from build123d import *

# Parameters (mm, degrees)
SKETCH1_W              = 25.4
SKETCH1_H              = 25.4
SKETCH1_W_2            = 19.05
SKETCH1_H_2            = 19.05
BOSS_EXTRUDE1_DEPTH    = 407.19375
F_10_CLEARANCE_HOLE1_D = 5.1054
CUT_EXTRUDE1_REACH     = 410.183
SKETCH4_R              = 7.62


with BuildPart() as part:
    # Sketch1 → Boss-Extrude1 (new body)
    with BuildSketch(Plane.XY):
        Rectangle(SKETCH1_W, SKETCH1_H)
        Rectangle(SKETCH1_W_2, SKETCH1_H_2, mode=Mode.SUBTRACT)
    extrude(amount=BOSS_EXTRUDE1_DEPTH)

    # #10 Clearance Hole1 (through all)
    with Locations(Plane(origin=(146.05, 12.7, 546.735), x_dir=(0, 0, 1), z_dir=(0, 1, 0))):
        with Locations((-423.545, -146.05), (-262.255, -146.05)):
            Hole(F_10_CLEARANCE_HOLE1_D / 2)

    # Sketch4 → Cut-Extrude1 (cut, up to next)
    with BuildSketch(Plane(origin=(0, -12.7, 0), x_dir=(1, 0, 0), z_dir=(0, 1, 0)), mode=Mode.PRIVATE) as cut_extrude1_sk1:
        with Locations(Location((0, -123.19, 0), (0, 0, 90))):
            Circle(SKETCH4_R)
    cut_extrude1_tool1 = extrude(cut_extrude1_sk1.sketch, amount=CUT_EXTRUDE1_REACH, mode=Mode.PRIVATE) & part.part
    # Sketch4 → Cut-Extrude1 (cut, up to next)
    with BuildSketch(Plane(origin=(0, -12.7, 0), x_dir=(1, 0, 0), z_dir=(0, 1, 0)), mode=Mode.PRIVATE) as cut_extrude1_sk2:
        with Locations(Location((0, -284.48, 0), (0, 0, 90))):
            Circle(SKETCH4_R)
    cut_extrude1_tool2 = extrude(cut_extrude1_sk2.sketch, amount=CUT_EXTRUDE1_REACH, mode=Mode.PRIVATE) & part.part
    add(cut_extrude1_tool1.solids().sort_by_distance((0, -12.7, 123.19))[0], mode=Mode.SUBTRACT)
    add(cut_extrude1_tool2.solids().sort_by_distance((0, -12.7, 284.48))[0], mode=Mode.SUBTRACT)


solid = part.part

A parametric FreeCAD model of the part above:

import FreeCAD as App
import Part
import Sketcher

V = App.Vector
Q = App.Units.Quantity

doc = App.newDocument("Part")
body = doc.addObject("PartDesign::Body", "Body")

sketch1 = body.newObject("Sketcher::SketchObject", "Sketch")
sketch1.AttachmentSupport = (doc.getObject("XY_Plane"), [""])
sketch1.MapMode = "FlatFace"
sketch1.addGeometry(Part.LineSegment(V(-13, 13, 0), V(-13, -13, 0)), False)
sketch1.addGeometry(Part.LineSegment(V(-13, -13, 0), V(13, -13, 0)), False)
sketch1.addGeometry(Part.LineSegment(V(13, -13, 0), V(13, 13, 0)), False)
sketch1.addGeometry(Part.LineSegment(V(13, 13, 0), V(-13, 13, 0)), False)
sketch1.addGeometry(Part.LineSegment(V(10, -10, 0), V(-10, -10, 0)), False)
sketch1.addGeometry(Part.LineSegment(V(-10, -10, 0), V(-10, 10, 0)), False)
sketch1.addGeometry(Part.LineSegment(V(-10, 10, 0), V(10, 10, 0)), False)
sketch1.addGeometry(Part.LineSegment(V(10, 10, 0), V(10, -10, 0)), False)
sketch1.addConstraint(Sketcher.Constraint("Coincident", 0, 2, 1, 1))
sketch1.addConstraint(Sketcher.Constraint("Coincident", 1, 2, 2, 1))
sketch1.addConstraint(Sketcher.Constraint("Coincident", 2, 2, 3, 1))
sketch1.addConstraint(Sketcher.Constraint("Coincident", 3, 2, 0, 1))
sketch1.addConstraint(Sketcher.Constraint("Coincident", 4, 2, 5, 1))
sketch1.addConstraint(Sketcher.Constraint("Coincident", 5, 2, 6, 1))
sketch1.addConstraint(Sketcher.Constraint("Coincident", 6, 2, 7, 1))
sketch1.addConstraint(Sketcher.Constraint("Coincident", 7, 2, 4, 1))
sketch1.addConstraint(Sketcher.Constraint("Vertical", 0))
sketch1.addConstraint(Sketcher.Constraint("Horizontal", 1))
sketch1.addConstraint(Sketcher.Constraint("Vertical", 2))
sketch1.addConstraint(Sketcher.Constraint("Horizontal", 3))
sketch1.addConstraint(Sketcher.Constraint("Horizontal", 4))
sketch1.addConstraint(Sketcher.Constraint("Vertical", 5))
sketch1.addConstraint(Sketcher.Constraint("Horizontal", 6))
sketch1.addConstraint(Sketcher.Constraint("Vertical", 7))
sketch1.addConstraint(Sketcher.Constraint("Symmetric", 0, 2, 2, 2, -1, 1))
sketch1.addConstraint(Sketcher.Constraint("Symmetric", 4, 2, 6, 2, -1, 1))
sketch1.addConstraint(Sketcher.Constraint("Equal", 3, 0))
sketch1.addConstraint(Sketcher.Constraint("Equal", 6, 5))
sketch1.addConstraint(Sketcher.Constraint("DistanceX", 1, 1, 1, 2, Q("1 in")))
sketch1.addConstraint(Sketcher.Constraint("DistanceX", 4, 2, 4, 1, Q("0.75 in")))
pad1 = body.newObject("PartDesign::Pad", "Pad")
pad1.Profile = sketch1
pad1.Length = Q("16.03125 in")

sketch2 = body.newObject("Sketcher::SketchObject", "Sketch001")
sketch2.AttachmentSupport = (doc.getObject("XZ_Plane"), [""])
sketch2.MapMode = "FlatFace"
sketch2.AttachmentOffset = App.Placement(V(0, 0, -0.5 * 25.4), App.Rotation())
sketch2.addGeometry(Part.Circle(V(0, 123.2, 0), V(0, 0, 1), 2.6), False)
sketch2.addGeometry(Part.Circle(V(0, 284.5, 0), V(0, 0, 1), 2.6), False)
sketch2.addConstraint(Sketcher.Constraint("Equal", 0, 1))
sketch2.addConstraint(Sketcher.Constraint("PointOnObject", 0, 3, -2))
sketch2.addConstraint(Sketcher.Constraint("PointOnObject", 1, 3, -2))
sketch2.addConstraint(Sketcher.Constraint("Diameter", 0, Q("0.201 in")))
sketch2.addConstraint(Sketcher.Constraint("DistanceY", -1, 1, 1, 3, Q("11.2 in")))
sketch2.addConstraint(Sketcher.Constraint("DistanceY", -1, 1, 0, 3, Q("4.85 in")))
doc.recompute()
hole = body.newObject("PartDesign::Hole", "Hole")
hole.Profile = sketch2
hole.ThreadType = "None"
hole.Diameter = Q("0.201 in")
hole.DepthType = "ThroughAll"
hole.Reversed = True

sketch3 = body.newObject("Sketcher::SketchObject", "Sketch002")
sketch3.AttachmentSupport = (doc.getObject("XZ_Plane"), [""])
sketch3.MapMode = "FlatFace"
sketch3.AttachmentOffset = App.Placement(V(0, 0, 0.5 * 25.4), App.Rotation())
sketch3.addGeometry(Part.Circle(V(0, 123, 0), V(0, 0, 1), 8), False)
sketch3.addConstraint(Sketcher.Constraint("PointOnObject", 0, 3, -2))
sketch3.addConstraint(Sketcher.Constraint("Diameter", 0, Q("0.6 in")))
sketch3.addConstraint(Sketcher.Constraint("DistanceY", -1, 1, 0, 3, Q("4.85 in")))
pocket1 = body.newObject("PartDesign::Pocket", "Pocket")
pocket1.Profile = sketch3
pocket1.Length = Q("0.125 in")

sketch4 = body.newObject("Sketcher::SketchObject", "Sketch003")
sketch4.AttachmentSupport = (doc.getObject("XZ_Plane"), [""])
sketch4.MapMode = "FlatFace"
sketch4.AttachmentOffset = App.Placement(V(0, 0, 0.5 * 25.4), App.Rotation())
sketch4.addGeometry(Part.Circle(V(0, 284, 0), V(0, 0, 1), 8), False)
sketch4.addConstraint(Sketcher.Constraint("PointOnObject", 0, 3, -2))
sketch4.addConstraint(Sketcher.Constraint("Diameter", 0, Q("0.6 in")))
sketch4.addConstraint(Sketcher.Constraint("DistanceY", -1, 1, 0, 3, Q("11.2 in")))
pocket2 = body.newObject("PartDesign::Pocket", "Pocket001")
pocket2.Profile = sketch4
pocket2.Length = Q("0.125 in")

doc.recompute()
